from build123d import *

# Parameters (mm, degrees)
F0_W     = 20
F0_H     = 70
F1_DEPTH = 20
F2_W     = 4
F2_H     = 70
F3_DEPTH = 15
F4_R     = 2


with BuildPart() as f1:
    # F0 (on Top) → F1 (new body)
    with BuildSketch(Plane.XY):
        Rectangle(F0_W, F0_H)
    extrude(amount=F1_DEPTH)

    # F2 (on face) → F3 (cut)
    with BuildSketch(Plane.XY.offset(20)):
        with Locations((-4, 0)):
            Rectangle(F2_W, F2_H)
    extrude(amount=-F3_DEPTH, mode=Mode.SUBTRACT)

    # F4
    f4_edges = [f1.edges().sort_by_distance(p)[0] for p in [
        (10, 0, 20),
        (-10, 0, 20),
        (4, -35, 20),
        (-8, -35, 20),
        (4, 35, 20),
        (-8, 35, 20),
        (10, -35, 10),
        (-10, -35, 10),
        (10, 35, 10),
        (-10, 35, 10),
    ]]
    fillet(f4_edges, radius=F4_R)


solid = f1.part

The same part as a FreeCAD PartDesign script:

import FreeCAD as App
import Part
import Sketcher

V = App.Vector
Q = App.Units.Quantity


def edges_at(feature, points):
    """Names of the edges that pass closest to the given points."""
    edges = feature.Shape.Edges
    near = lambda p: min(range(len(edges)), key=lambda i: edges[i].distToShape(Part.Vertex(*p))[0])
    return sorted({f"Edge{near(p) + 1}" for p in points})


def add_polygon(sketch, points):
    """Adds a closed chain of lines whose ends are joined by coincident constraints."""
    first, n = sketch.GeometryCount, len(points)
    for a, b in zip(points, points[1:] + points[:1]):
        sketch.addGeometry(Part.LineSegment(App.Vector(*a, 0), App.Vector(*b, 0)), False)
    for i in range(n):
        sketch.addConstraint(Sketcher.Constraint("Coincident", first + i, 2, first + (i + 1) % n, 1))

doc = App.newDocument("Part")
body = doc.addObject("PartDesign::Body", "Body")

sketch1 = body.newObject("Sketcher::SketchObject", "Sketch")
sketch1.AttachmentSupport = (doc.getObject("XY_Plane"), [""])
sketch1.MapMode = "FlatFace"
add_polygon(sketch1, [(-10, 35), (-10, -35), (10, -35), (10, 35)])
sketch1.addConstraint([
    Sketcher.Constraint("Vertical", 0),
    Sketcher.Constraint("Horizontal", 1),
    Sketcher.Constraint("Vertical", 2),
    Sketcher.Constraint("Horizontal", 3),
    Sketcher.Constraint("Symmetric", 0, 2, 2, 2, -1, 1),
    Sketcher.Constraint("DistanceX", 1, 1, 1, 2, Q("20 mm")),
    Sketcher.Constraint("DistanceY", 0, 2, 0, 1, Q("70 mm")),
])
pad1 = body.newObject("PartDesign::Pad", "Pad")
pad1.Profile = sketch1
pad1.Length = 20

sketch2 = body.newObject("Sketcher::SketchObject", "Sketch001")
sketch2.AttachmentSupport = (doc.getObject("XY_Plane"), [""])
sketch2.MapMode = "FlatFace"
sketch2.AttachmentOffset = App.Placement(V(0, 0, 20), App.Rotation())
add_polygon(sketch2, [(-6, 35), (-6, -35), (-2, -35), (-2, 35)])
sketch2.addConstraint([
    Sketcher.Constraint("Vertical", 0),
    Sketcher.Constraint("Horizontal", 1),
    Sketcher.Constraint("Vertical", 2),
    Sketcher.Constraint("Horizontal", 3),
    Sketcher.Constraint("DistanceX", 1, 1, 1, 2, Q("4 mm")),
    Sketcher.Constraint("DistanceY", 0, 2, 0, 1, Q("70 mm")),
    Sketcher.Constraint("DistanceX", 0, 2, -1, 1, Q("6 mm")),
    Sketcher.Constraint("DistanceY", 0, 2, -1, 1, Q("35 mm")),
])
pocket1 = body.newObject("PartDesign::Pocket", "Pocket")
pocket1.Profile = sketch2
pocket1.Length = 15
doc.recompute()

fillet = body.newObject("PartDesign::Fillet", "Fillet")
fillet.Base = (pocket1, edges_at(pocket1, [
    (10, 0, 20),
    (-10, 0, 20),
    (4, -35, 20),
    (-8, -35, 20),
    (4, 35, 20),
    (-8, 35, 20),
    (10, -35, 10),
    (-10, -35, 10),
    (10, 35, 10),
    (-10, 35, 10),
]))
fillet.Radius = 2

doc.recompute()
